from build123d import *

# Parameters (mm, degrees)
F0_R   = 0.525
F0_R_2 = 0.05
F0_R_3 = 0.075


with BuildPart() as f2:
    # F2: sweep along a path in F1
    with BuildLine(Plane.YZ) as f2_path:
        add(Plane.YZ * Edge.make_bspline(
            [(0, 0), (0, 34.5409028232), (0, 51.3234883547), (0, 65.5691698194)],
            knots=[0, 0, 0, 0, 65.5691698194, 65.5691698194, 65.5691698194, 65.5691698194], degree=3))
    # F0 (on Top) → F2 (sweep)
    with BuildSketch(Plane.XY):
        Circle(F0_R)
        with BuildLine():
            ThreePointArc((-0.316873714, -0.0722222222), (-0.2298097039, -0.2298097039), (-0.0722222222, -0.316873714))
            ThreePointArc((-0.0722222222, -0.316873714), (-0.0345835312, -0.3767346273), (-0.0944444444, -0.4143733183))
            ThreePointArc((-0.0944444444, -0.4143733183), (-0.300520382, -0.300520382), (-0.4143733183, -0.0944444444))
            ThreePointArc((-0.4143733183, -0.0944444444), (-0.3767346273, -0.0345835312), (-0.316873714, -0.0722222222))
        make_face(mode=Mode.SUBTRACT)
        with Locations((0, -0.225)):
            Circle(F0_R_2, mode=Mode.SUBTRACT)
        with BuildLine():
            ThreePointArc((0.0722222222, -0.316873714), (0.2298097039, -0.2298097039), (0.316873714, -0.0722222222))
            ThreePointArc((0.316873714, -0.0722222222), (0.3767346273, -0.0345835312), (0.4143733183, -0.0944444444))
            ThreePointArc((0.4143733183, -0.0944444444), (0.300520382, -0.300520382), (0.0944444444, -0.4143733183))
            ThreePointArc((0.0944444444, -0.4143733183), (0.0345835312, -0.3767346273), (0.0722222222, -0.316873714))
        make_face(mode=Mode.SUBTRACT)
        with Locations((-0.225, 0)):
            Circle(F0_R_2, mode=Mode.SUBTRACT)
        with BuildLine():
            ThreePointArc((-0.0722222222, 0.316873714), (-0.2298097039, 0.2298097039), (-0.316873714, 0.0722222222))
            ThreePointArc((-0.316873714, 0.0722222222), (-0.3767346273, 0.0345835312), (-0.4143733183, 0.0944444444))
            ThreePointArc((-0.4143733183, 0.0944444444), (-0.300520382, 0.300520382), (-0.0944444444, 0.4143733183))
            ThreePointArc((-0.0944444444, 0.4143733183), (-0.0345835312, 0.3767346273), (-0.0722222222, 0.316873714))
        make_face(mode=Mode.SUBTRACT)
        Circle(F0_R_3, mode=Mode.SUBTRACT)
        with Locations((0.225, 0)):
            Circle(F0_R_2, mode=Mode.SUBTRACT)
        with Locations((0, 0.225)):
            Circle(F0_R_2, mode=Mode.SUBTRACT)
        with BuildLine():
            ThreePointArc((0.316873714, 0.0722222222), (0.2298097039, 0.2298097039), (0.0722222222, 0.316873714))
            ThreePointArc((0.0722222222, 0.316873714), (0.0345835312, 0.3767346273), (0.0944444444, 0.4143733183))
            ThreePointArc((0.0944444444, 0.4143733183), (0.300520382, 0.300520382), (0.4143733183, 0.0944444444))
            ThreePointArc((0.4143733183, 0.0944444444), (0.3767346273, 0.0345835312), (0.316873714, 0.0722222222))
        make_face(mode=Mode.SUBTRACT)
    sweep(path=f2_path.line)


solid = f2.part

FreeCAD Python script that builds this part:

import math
import FreeCAD as App
import Part
import Sketcher

doc = App.newDocument("Part")
body = doc.addObject("PartDesign::Body", "Body")

# Sketch on XY plane
sketch1 = body.newObject("Sketcher::SketchObject", "Sketch")
sketch1.AttachmentSupport = (doc.getObject("XY_Plane"), [""])
sketch1.MapMode = "FlatFace"
sketch1.addGeometry(Part.Circle(App.Vector(0, 0, 0), App.Vector(0, 0, 1), 0.53), False)
sketch1.addGeometry(Part.ArcOfCircle(Part.Circle(App.Vector(-0.37, -0.08, 0), App.Vector(0, 0, 1), 0.05), math.radians(13), math.radians(193)), False)
sketch1.addGeometry(Part.ArcOfCircle(Part.Circle(App.Vector(0, 0, 0), App.Vector(0, 0, 1), 0.33), math.radians(-167), math.radians(-103)), False)
sketch1.addGeometry(Part.ArcOfCircle(Part.Circle(App.Vector(-0.08, -0.37, 0), App.Vector(0, 0, 1), 0.05), math.radians(-103), math.radians(77)), False)
sketch1.addGeometry(Part.ArcOfCircle(Part.Circle(App.Vector(0, 0, 0), App.Vector(0, 0, 1), 0.42), math.radians(-167), math.radians(-103)), False)
sketch1.addGeometry(Part.Circle(App.Vector(0, -0.23, 0), App.Vector(0, 0, 1), 0.05), False)
sketch1.addGeometry(Part.ArcOfCircle(Part.Circle(App.Vector(0.08, -0.37, 0), App.Vector(0, 0, 1), 0.05), math.radians(103), math.radians(283)), False)
sketch1.addGeometry(Part.ArcOfCircle(Part.Circle(App.Vector(0, 0, 0), App.Vector(0, 0, 1), 0.33), math.radians(-77), math.radians(-13)), False)
sketch1.addGeometry(Part.ArcOfCircle(Part.Circle(App.Vector(0.37, -0.08, 0), App.Vector(0, 0, 1), 0.05), math.radians(-13), math.radians(167)), False)
sketch1.addGeometry(Part.ArcOfCircle(Part.Circle(App.Vector(0, 0, 0), App.Vector(0, 0, 1), 0.42), math.radians(-77), math.radians(-13)), False)
sketch1.addGeometry(Part.Circle(App.Vector(-0.23, 0, 0), App.Vector(0, 0, 1), 0.05), False)
sketch1.addGeometry(Part.Circle(App.Vector(0, 0, 0), App.Vector(0, 0, 1), 0.07), False)
sketch1.addGeometry(Part.ArcOfCircle(Part.Circle(App.Vector(-0.08, 0.37, 0), App.Vector(0, 0, 1), 0.05), math.radians(-77), math.radians(103)), False)
sketch1.addGeometry(Part.ArcOfCircle(Part.Circle(App.Vector(0, 0, 0), App.Vector(0, 0, 1), 0.33), math.radians(103), math.radians(167)), False)
sketch1.addGeometry(Part.ArcOfCircle(Part.Circle(App.Vector(-0.37, 0.08, 0), App.Vector(0, 0, 1), 0.05), math.radians(167), math.radians(347)), False)
sketch1.addGeometry(Part.ArcOfCircle(Part.Circle(App.Vector(0, 0, 0), App.Vector(0, 0, 1), 0.42), math.radians(103), math.radians(167)), False)
sketch1.addGeometry(Part.Circle(App.Vector(0, 0.23, 0), App.Vector(0, 0, 1), 0.05), False)
sketch1.addGeometry(Part.Circle(App.Vector(0.23, 0, 0), App.Vector(0, 0, 1), 0.05), False)
sketch1.addGeometry(Part.ArcOfCircle(Part.Circle(App.Vector(0.37, 0.08, 0), App.Vector(0, 0, 1), 0.05), math.radians(-167), math.radians(13)), False)
sketch1.addGeometry(Part.ArcOfCircle(Part.Circle(App.Vector(0, 0, 0), App.Vector(0, 0, 1), 0.33), math.radians(13), math.radians(77)), False)
sketch1.addGeometry(Part.ArcOfCircle(Part.Circle(App.Vector(0.08, 0.37, 0), App.Vector(0, 0, 1), 0.05), math.radians(77), math.radians(257)), False)
sketch1.addGeometry(Part.ArcOfCircle(Part.Circle(App.Vector(0, 0, 0), App.Vector(0, 0, 1), 0.42), math.radians(13), math.radians(77)), False)
sketch1.addConstraint(Sketcher.Constraint("Tangent", 1, 1, 2, 1))
sketch1.addConstraint(Sketcher.Constraint("Tangent", 2, 2, 3, 2))
sketch1.addConstraint(Sketcher.Constraint("Tangent", 3, 1, 4, 2))
sketch1.addConstraint(Sketcher.Constraint("Tangent", 4, 1, 1, 2))
sketch1.addConstraint(Sketcher.Constraint("Tangent", 6, 1, 7, 1))
sketch1.addConstraint(Sketcher.Constraint("Tangent", 7, 2, 8, 2))
sketch1.addConstraint(Sketcher.Constraint("Tangent", 8, 1, 9, 2))
sketch1.addConstraint(Sketcher.Constraint("Tangent", 9, 1, 6, 2))
sketch1.addConstraint(Sketcher.Constraint("Tangent", 12, 1, 13, 1))
sketch1.addConstraint(Sketcher.Constraint("Tangent", 13, 2, 14, 2))
sketch1.addConstraint(Sketcher.Constraint("Tangent", 14, 1, 15, 2))
sketch1.addConstraint(Sketcher.Constraint("Tangent", 15, 1, 12, 2))
sketch1.addConstraint(Sketcher.Constraint("Tangent", 18, 1, 19, 1))
sketch1.addConstraint(Sketcher.Constraint("Tangent", 19, 2, 20, 2))
sketch1.addConstraint(Sketcher.Constraint("Tangent", 20, 1, 21, 2))
sketch1.addConstraint(Sketcher.Constraint("Tangent", 21, 1, 18, 2))
sketch1.addConstraint(Sketcher.Constraint("Coincident", 0, 3, -1, 1))
sketch1.addConstraint(Sketcher.Constraint("Coincident", 2, 3, -1, 1))
sketch1.addConstraint(Sketcher.Constraint("Coincident", 4, 3, -1, 1))
sketch1.addConstraint(Sketcher.Constraint("Coincident", 7, 3, -1, 1))
sketch1.addConstraint(Sketcher.Constraint("Coincident", 9, 3, -1, 1))
sketch1.addConstraint(Sketcher.Constraint("Coincident", 11, 3, -1, 1))
sketch1.addConstraint(Sketcher.Constraint("Coincident", 13, 3, -1, 1))
sketch1.addConstraint(Sketcher.Constraint("Coincident", 15, 3, -1, 1))
sketch1.addConstraint(Sketcher.Constraint("Coincident", 19, 3, -1, 1))
sketch1.addConstraint(Sketcher.Constraint("Coincident", 21, 3, -1, 1))
sketch1.addConstraint(Sketcher.Constraint("Equal", 3, 5))
sketch1.addConstraint(Sketcher.Constraint("Equal", 5, 6))
sketch1.addConstraint(Sketcher.Constraint("Equal", 2, 7))
sketch1.addConstraint(Sketcher.Constraint("Equal", 8, 10))
sketch1.addConstraint(Sketcher.Constraint("Equal", 10, 12))
sketch1.addConstraint(Sketcher.Constraint("Equal", 7, 13))
sketch1.addConstraint(Sketcher.Constraint("Equal", 14, 16))
sketch1.addConstraint(Sketcher.Constraint("Equal", 16, 17))
sketch1.addConstraint(Sketcher.Constraint("Equal", 17, 18))
sketch1.addConstraint(Sketcher.Constraint("Equal", 13, 19))
sketch1.addConstraint(Sketcher.Constraint("Symmetric", 5, 3, 16, 3, -1, 1))
sketch1.addConstraint(Sketcher.Constraint("Symmetric", 10, 3, 17, 3, -1, 1))
sketch1.addConstraint(Sketcher.Constraint("PointOnObject", 5, 3, -2))
sketch1.addConstraint(Sketcher.Constraint("PointOnObject", 10, 3, -1))
sketch1.addConstraint(Sketcher.Constraint("Horizontal", 3, 3, 6, 3))
sketch1.addConstraint(Sketcher.Constraint("Horizontal", 1, 3, 8, 3))
sketch1.addConstraint(Sketcher.Constraint("Horizontal", 14, 3, 18, 3))
sketch1.addConstraint(Sketcher.Constraint("Horizontal", 12, 3, 20, 3))
sketch1.addConstraint(Sketcher.Constraint("Vertical", 3, 3, 12, 3))
sketch1.addConstraint(Sketcher.Constraint("Vertical", 1, 3, 14, 3))
sketch1.addConstraint(Sketcher.Constraint("Diameter", 5, 0.1))
sketch1.addConstraint(Sketcher.Constraint("Diameter", 0, 1.05))
sketch1.addConstraint(Sketcher.Constraint("Diameter", 11, 0.15))
sketch1.addConstraint(Sketcher.Constraint("Radius", 2, 0.325))
sketch1.addConstraint(Sketcher.Constraint("DistanceY", 5, 3, -1, 1, 0.225))
sketch1.addConstraint(Sketcher.Constraint("DistanceX", 10, 3, -1, 1, 0.225))
sketch1.addConstraint(Sketcher.Constraint("DistanceY", 3, 1, 2, 2, 0.0975))
sketch1.addConstraint(Sketcher.Constraint("DistanceX", 4, 1, 1, 1, 0.0975))

# Sketch on XZ plane
sketch2 = body.newObject("Sketcher::SketchObject", "Sketch001")
sketch2.AttachmentSupport = (doc.getObject("XZ_Plane"), [""])
sketch2.MapMode = "FlatFace"
sketch2.addGeometry(Part.BSplineCurve([App.Vector(0, 0, 0), App.Vector(0, 34.540903, 0), App.Vector(0, 51.323488, 0), App.Vector(0, 65.56917, 0)], [4, 4], [0, 65.569169819], False, 3, [1, 1, 1, 1], False), False)
sketch2.addConstraint(Sketcher.Constraint("Block", 0))
doc.recompute()

additivepipe = body.newObject("PartDesign::AdditivePipe", "AdditivePipe")
additivepipe.Profile = sketch1
additivepipe.Spine = (sketch2, ["Edge1"])

doc.recompute()
